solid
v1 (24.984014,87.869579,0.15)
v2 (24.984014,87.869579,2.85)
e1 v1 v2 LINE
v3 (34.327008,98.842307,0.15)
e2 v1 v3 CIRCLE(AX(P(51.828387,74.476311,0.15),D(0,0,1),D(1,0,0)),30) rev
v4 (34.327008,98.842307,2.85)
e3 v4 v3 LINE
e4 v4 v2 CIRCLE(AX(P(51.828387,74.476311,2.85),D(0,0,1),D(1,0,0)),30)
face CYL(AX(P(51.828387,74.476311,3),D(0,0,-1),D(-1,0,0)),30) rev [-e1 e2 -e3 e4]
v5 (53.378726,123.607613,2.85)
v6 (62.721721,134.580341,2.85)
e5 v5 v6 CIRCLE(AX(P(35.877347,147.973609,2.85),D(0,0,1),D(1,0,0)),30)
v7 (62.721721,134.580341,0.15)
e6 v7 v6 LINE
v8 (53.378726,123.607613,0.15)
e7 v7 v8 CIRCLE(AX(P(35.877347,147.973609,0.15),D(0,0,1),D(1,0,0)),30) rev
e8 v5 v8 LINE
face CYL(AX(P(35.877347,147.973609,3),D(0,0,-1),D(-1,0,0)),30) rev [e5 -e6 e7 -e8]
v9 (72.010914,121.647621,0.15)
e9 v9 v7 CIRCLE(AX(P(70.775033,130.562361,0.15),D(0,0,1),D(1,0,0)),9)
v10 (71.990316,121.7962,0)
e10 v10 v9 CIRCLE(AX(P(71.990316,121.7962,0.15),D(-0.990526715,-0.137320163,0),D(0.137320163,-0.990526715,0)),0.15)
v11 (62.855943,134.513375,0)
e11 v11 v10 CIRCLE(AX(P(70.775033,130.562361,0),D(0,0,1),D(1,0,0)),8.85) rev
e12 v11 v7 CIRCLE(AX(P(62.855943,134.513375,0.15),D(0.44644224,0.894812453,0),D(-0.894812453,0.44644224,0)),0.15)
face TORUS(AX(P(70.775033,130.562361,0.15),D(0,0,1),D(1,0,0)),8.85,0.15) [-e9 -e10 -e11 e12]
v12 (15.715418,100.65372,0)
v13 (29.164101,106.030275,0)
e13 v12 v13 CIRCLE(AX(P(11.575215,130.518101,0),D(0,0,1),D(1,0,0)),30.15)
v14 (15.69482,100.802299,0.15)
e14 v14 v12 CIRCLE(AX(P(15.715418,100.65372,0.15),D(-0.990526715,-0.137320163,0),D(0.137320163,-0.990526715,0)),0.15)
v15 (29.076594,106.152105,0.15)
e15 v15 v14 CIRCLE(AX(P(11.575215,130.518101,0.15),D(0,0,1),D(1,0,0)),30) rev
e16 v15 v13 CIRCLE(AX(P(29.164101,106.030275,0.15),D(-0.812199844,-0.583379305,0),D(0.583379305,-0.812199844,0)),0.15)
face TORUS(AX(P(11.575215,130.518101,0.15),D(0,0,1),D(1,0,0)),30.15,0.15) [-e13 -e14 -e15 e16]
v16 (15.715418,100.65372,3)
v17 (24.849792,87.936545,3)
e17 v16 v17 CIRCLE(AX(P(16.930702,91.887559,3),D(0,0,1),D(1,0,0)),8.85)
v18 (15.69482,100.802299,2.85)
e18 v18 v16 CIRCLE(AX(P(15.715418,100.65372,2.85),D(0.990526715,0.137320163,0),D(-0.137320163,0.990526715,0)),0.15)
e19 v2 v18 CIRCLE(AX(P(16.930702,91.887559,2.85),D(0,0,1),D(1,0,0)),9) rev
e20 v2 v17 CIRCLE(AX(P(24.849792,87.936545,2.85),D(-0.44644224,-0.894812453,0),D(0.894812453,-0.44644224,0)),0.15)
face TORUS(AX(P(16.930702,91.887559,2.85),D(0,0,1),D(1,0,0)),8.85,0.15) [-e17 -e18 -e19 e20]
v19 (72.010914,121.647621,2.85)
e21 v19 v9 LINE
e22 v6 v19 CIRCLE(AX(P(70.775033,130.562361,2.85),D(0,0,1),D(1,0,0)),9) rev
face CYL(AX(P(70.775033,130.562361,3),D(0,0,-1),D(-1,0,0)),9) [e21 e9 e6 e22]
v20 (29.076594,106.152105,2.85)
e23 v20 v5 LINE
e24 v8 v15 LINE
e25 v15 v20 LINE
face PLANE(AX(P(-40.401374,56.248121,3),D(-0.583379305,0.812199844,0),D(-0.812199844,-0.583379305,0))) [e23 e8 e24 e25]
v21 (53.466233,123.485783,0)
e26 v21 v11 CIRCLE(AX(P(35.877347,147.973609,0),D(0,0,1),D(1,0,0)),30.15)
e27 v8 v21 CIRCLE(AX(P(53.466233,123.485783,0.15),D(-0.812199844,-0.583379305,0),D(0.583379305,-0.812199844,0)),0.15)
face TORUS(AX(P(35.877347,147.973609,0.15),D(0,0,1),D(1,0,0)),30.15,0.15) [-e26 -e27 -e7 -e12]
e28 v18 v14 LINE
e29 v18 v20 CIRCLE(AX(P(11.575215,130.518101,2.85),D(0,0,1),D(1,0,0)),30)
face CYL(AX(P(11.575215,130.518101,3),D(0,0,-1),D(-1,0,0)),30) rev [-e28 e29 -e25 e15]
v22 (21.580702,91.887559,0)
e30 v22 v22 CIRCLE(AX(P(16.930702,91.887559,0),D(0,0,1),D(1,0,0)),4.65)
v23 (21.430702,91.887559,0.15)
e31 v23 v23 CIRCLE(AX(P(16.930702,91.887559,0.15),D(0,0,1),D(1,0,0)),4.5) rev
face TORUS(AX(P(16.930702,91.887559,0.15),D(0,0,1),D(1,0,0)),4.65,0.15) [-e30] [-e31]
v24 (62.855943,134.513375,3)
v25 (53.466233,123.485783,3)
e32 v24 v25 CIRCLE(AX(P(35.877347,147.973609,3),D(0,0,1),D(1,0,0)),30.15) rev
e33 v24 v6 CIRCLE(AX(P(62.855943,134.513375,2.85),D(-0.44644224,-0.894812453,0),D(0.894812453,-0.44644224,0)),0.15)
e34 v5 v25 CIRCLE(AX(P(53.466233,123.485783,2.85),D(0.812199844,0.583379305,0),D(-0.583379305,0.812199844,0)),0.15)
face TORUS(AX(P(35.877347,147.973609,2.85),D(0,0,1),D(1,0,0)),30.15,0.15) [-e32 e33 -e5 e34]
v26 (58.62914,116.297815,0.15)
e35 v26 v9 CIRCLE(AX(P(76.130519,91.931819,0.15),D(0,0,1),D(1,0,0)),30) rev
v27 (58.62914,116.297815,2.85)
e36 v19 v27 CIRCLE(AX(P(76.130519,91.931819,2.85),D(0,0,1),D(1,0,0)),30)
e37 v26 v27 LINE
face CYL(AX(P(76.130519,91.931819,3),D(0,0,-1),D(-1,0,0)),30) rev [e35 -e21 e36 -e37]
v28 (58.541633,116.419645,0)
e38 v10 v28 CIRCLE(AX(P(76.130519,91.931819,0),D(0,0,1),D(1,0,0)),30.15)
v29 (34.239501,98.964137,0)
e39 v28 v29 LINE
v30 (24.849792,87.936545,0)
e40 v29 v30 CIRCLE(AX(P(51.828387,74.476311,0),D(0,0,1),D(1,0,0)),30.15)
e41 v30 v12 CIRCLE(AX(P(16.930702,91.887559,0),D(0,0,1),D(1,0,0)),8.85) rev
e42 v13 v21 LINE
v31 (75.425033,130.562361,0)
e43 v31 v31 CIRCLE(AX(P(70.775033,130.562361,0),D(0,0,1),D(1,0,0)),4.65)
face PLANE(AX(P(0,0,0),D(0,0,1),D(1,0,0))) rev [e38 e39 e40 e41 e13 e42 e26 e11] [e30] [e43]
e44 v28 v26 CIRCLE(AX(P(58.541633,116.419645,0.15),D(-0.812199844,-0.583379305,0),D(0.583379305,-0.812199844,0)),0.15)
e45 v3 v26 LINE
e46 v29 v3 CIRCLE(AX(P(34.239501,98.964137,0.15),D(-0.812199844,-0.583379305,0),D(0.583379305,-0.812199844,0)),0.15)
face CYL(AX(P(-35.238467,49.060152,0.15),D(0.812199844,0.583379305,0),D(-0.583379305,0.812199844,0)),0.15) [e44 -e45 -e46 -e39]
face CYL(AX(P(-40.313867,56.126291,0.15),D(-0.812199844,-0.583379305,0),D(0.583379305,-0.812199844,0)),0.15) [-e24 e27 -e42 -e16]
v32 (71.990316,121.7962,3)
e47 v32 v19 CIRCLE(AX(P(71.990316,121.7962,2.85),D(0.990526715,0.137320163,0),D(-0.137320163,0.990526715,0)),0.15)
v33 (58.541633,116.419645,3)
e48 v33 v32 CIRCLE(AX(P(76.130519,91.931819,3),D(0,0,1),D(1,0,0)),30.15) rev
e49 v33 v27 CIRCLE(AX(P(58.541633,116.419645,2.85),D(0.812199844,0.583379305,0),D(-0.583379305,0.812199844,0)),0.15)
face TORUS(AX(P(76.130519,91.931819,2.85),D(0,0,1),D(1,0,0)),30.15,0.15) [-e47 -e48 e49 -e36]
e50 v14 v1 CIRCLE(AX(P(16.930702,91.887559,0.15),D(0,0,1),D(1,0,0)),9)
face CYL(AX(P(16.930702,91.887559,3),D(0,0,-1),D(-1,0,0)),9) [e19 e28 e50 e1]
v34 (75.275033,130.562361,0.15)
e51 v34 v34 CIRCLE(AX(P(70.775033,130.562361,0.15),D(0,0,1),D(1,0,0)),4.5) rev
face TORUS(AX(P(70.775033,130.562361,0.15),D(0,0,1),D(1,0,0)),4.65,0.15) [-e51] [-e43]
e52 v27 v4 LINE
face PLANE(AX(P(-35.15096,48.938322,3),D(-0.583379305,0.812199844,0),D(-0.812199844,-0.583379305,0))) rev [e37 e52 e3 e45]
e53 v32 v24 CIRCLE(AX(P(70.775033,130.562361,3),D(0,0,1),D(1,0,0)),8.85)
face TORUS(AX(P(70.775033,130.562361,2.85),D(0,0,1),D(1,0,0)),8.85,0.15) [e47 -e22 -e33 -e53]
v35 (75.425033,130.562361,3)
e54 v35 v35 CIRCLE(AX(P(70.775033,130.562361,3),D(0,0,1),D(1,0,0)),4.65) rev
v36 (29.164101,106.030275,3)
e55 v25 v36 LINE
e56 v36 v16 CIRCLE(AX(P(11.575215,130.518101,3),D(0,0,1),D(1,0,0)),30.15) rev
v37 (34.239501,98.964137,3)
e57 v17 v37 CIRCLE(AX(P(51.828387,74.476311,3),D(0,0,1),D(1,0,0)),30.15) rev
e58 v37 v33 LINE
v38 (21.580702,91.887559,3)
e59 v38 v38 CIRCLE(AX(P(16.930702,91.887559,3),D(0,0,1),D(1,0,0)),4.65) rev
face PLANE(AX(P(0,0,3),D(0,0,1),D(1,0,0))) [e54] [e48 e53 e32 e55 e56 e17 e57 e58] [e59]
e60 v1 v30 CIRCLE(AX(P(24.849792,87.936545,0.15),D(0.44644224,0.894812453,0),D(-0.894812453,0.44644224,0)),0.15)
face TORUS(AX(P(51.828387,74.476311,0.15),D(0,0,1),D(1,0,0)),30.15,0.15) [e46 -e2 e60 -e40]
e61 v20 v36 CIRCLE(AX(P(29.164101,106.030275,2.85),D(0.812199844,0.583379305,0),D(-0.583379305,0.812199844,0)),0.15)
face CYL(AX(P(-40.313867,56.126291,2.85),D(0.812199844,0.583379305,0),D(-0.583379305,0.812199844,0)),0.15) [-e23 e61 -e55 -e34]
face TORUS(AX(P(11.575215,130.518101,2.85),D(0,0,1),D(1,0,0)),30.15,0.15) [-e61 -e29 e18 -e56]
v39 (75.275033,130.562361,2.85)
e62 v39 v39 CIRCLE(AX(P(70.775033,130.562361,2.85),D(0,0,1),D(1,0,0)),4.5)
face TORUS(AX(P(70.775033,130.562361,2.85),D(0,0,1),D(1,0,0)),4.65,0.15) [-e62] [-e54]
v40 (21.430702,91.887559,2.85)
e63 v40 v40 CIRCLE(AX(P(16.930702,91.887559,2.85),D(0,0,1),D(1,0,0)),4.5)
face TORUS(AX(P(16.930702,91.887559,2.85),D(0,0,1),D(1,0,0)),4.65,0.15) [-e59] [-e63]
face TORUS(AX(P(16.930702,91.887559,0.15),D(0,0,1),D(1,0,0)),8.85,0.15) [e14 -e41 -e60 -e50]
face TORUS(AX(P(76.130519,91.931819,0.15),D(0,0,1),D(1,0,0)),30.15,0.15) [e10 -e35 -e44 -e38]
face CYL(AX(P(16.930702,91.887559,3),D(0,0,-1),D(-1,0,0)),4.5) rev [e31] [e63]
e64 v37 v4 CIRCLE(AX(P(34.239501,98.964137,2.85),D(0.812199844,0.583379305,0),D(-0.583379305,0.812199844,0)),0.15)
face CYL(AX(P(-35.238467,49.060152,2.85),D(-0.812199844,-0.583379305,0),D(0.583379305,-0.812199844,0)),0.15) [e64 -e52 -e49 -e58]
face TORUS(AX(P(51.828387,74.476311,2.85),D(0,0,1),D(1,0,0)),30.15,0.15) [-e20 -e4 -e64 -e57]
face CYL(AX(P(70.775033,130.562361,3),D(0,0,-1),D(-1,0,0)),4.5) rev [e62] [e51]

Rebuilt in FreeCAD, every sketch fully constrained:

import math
import FreeCAD as App
import Part
import Sketcher

V = App.Vector
Q = App.Units.Quantity


def edges_at(feature, points):
    """Names of the edges that pass closest to the given points."""
    edges = feature.Shape.Edges
    near = lambda p: min(range(len(edges)), key=lambda i: edges[i].distToShape(Part.Vertex(*p))[0])
    return sorted({f"Edge{near(p) + 1}" for p in points})

doc = App.newDocument("Part")
body = doc.addObject("PartDesign::Body", "Body")

# Sketch on XY plane
sketch1 = body.newObject("Sketcher::SketchObject", "Sketch")
sketch1.AttachmentSupport = (doc.getObject("XY_Plane"), [""])
sketch1.MapMode = "FlatFace"
sketch1.addGeometry(Part.ArcOfCircle(Part.Circle(V(70.775033, 130.562361, 0), V(0, 0, 1), 9), math.radians(0), math.radians(185.688578)), False)
sketch1.addGeometry(Part.LineSegment(V(61.819355, 129.670269, 0), V(20.635966, 100.08945, 0)), False)
sketch1.addGeometry(Part.ArcOfCircle(Part.Circle(V(16.930702, 91.887559, 0), V(0, 0, 1), 9), math.radians(65.688578), math.radians(360)), False)
sketch1.addGeometry(Part.ArcOfCircle(Part.Circle(V(16.930702, 91.887559, 0), V(0, 0, 1), 9), math.radians(0), math.radians(5.688578)), False)
sketch1.addGeometry(Part.LineSegment(V(25.88638, 92.779651, 0), V(67.069768, 122.36047, 0)), False)
sketch1.addGeometry(Part.ArcOfCircle(Part.Circle(V(70.775033, 130.562361, 0), V(0, 0, 1), 9), math.radians(-114.311422), math.radians(0)), False)
sketch1.addGeometry(Part.ArcOfCircle(Part.Circle(V(70.775033, 130.562361, 0), V(0, 0, 1), 4.5), math.radians(-54.311422), math.radians(125.688578)), False)
sketch1.addGeometry(Part.ArcOfCircle(Part.Circle(V(70.775033, 130.562361, 0), V(0, 0, 1), 4.5), math.radians(125.688578), math.radians(305.688578)), False)
sketch1.addGeometry(Part.Circle(V(16.930702, 91.887559, 0), V(0, 0, 1), 4.5), False)
sketch1.addConstraint(Sketcher.Constraint("Coincident", 0, 2, 1, 1))
sketch1.addConstraint(Sketcher.Constraint("Coincident", 1, 2, 2, 1))
sketch1.addConstraint(Sketcher.Constraint("Tangent", 2, 2, 3, 1))
sketch1.addConstraint(Sketcher.Constraint("Coincident", 3, 2, 4, 1))
sketch1.addConstraint(Sketcher.Constraint("Coincident", 4, 2, 5, 1))
sketch1.addConstraint(Sketcher.Constraint("Tangent", 5, 2, 0, 1))
sketch1.addConstraint(Sketcher.Constraint("Tangent", 6, 1, 7, 2))
sketch1.addConstraint(Sketcher.Constraint("Coincident", 7, 1, 6, 2))
sketch1.addConstraint(Sketcher.Constraint("Coincident", 6, 3, 0, 3))
sketch1.addConstraint(Sketcher.Constraint("Coincident", 8, 3, 2, 3))
sketch1.addConstraint(Sketcher.Constraint("Equal", 0, 2))
sketch1.addConstraint(Sketcher.Constraint("Equal", 2, 3))
sketch1.addConstraint(Sketcher.Constraint("Equal", 3, 5))
sketch1.addConstraint(Sketcher.Constraint("Equal", 7, 8))
sketch1.addConstraint(Sketcher.Constraint("Parallel", 1, 4))
sketch1.addConstraint(Sketcher.Constraint("Horizontal", 8, 3, 2, 2))
sketch1.addConstraint(Sketcher.Constraint("Horizontal", 7, 3, 5, 2))
sketch1.addConstraint(Sketcher.Constraint("Equal", 1, 4))
sketch1.addConstraint(Sketcher.Constraint("Diameter", 8, Q("9 mm")))
sketch1.addConstraint(Sketcher.Constraint("Radius", 0, Q("9 mm")))
sketch1.addConstraint(Sketcher.Constraint("DistanceX", -1, 1, 2, 3, Q("16.930702 mm")))
sketch1.addConstraint(Sketcher.Constraint("DistanceY", 3, 2, 1, 2, Q("7.309799 mm")))
sketch1.addConstraint(Sketcher.Constraint("DistanceY", 6, 1, 0, 3, Q("3.654899 mm")))
sketch1.addConstraint(Sketcher.Constraint("DistanceY", 5, 3, 7, 1, Q("3.654899 mm")))
sketch1.addConstraint(Sketcher.Constraint("Distance", 1, Q("50.705979 mm")))
sketch1.addConstraint(Sketcher.Constraint("DistanceY", -1, 1, 0, 3, Q("130.562361 mm")))
sketch1.addConstraint(Sketcher.Constraint("DistanceY", -1, 1, 2, 3, Q("91.887559 mm")))
sketch1.addConstraint(Sketcher.Constraint("DistanceY", -1, 1, 0, 2, Q("129.670269 mm")))
pad1 = body.newObject("PartDesign::Pad", "Pad")
pad1.Profile = sketch1
pad1.Length = 3
doc.recompute()

fillet = body.newObject("PartDesign::Fillet", "Fillet")
fillet.Base = (pad1, edges_at(pad1, [
    (61.819, 129.67, 1.5),
    (67.07, 122.36, 1.5),
    (25.886, 92.78, 1.5),
    (20.636, 100.089, 1.5),
]))
fillet.Radius = 30
doc.recompute()

fillet2 = body.newObject("PartDesign::Fillet", "Fillet001")
fillet2.Base = (fillet, edges_at(fillet, [
    (74.43, 133.188, 3),
    (9.621, 86.637, 0),
    (9.621, 86.637, 3),
    (41.228, 114.88, 0),
    (41.228, 114.88, 3),
    (46.478, 107.57, 0),
    (46.478, 107.57, 3),
    (14.305, 95.542, 3),
    (72.839, 139.322, 0),
    (72.839, 139.322, 3),
    (22.712, 102.662, 0),
    (22.712, 102.662, 3),
    (28.987, 93.925, 0),
    (28.987, 93.925, 3),
    (64.994, 119.788, 0),
    (64.994, 119.788, 3),
    (58.719, 128.525, 0),
    (58.719, 128.525, 3),
    (14.305, 95.542, 0),
    (74.43, 133.188, 0),
]))
fillet2.Radius = 0.15

doc.recompute()
